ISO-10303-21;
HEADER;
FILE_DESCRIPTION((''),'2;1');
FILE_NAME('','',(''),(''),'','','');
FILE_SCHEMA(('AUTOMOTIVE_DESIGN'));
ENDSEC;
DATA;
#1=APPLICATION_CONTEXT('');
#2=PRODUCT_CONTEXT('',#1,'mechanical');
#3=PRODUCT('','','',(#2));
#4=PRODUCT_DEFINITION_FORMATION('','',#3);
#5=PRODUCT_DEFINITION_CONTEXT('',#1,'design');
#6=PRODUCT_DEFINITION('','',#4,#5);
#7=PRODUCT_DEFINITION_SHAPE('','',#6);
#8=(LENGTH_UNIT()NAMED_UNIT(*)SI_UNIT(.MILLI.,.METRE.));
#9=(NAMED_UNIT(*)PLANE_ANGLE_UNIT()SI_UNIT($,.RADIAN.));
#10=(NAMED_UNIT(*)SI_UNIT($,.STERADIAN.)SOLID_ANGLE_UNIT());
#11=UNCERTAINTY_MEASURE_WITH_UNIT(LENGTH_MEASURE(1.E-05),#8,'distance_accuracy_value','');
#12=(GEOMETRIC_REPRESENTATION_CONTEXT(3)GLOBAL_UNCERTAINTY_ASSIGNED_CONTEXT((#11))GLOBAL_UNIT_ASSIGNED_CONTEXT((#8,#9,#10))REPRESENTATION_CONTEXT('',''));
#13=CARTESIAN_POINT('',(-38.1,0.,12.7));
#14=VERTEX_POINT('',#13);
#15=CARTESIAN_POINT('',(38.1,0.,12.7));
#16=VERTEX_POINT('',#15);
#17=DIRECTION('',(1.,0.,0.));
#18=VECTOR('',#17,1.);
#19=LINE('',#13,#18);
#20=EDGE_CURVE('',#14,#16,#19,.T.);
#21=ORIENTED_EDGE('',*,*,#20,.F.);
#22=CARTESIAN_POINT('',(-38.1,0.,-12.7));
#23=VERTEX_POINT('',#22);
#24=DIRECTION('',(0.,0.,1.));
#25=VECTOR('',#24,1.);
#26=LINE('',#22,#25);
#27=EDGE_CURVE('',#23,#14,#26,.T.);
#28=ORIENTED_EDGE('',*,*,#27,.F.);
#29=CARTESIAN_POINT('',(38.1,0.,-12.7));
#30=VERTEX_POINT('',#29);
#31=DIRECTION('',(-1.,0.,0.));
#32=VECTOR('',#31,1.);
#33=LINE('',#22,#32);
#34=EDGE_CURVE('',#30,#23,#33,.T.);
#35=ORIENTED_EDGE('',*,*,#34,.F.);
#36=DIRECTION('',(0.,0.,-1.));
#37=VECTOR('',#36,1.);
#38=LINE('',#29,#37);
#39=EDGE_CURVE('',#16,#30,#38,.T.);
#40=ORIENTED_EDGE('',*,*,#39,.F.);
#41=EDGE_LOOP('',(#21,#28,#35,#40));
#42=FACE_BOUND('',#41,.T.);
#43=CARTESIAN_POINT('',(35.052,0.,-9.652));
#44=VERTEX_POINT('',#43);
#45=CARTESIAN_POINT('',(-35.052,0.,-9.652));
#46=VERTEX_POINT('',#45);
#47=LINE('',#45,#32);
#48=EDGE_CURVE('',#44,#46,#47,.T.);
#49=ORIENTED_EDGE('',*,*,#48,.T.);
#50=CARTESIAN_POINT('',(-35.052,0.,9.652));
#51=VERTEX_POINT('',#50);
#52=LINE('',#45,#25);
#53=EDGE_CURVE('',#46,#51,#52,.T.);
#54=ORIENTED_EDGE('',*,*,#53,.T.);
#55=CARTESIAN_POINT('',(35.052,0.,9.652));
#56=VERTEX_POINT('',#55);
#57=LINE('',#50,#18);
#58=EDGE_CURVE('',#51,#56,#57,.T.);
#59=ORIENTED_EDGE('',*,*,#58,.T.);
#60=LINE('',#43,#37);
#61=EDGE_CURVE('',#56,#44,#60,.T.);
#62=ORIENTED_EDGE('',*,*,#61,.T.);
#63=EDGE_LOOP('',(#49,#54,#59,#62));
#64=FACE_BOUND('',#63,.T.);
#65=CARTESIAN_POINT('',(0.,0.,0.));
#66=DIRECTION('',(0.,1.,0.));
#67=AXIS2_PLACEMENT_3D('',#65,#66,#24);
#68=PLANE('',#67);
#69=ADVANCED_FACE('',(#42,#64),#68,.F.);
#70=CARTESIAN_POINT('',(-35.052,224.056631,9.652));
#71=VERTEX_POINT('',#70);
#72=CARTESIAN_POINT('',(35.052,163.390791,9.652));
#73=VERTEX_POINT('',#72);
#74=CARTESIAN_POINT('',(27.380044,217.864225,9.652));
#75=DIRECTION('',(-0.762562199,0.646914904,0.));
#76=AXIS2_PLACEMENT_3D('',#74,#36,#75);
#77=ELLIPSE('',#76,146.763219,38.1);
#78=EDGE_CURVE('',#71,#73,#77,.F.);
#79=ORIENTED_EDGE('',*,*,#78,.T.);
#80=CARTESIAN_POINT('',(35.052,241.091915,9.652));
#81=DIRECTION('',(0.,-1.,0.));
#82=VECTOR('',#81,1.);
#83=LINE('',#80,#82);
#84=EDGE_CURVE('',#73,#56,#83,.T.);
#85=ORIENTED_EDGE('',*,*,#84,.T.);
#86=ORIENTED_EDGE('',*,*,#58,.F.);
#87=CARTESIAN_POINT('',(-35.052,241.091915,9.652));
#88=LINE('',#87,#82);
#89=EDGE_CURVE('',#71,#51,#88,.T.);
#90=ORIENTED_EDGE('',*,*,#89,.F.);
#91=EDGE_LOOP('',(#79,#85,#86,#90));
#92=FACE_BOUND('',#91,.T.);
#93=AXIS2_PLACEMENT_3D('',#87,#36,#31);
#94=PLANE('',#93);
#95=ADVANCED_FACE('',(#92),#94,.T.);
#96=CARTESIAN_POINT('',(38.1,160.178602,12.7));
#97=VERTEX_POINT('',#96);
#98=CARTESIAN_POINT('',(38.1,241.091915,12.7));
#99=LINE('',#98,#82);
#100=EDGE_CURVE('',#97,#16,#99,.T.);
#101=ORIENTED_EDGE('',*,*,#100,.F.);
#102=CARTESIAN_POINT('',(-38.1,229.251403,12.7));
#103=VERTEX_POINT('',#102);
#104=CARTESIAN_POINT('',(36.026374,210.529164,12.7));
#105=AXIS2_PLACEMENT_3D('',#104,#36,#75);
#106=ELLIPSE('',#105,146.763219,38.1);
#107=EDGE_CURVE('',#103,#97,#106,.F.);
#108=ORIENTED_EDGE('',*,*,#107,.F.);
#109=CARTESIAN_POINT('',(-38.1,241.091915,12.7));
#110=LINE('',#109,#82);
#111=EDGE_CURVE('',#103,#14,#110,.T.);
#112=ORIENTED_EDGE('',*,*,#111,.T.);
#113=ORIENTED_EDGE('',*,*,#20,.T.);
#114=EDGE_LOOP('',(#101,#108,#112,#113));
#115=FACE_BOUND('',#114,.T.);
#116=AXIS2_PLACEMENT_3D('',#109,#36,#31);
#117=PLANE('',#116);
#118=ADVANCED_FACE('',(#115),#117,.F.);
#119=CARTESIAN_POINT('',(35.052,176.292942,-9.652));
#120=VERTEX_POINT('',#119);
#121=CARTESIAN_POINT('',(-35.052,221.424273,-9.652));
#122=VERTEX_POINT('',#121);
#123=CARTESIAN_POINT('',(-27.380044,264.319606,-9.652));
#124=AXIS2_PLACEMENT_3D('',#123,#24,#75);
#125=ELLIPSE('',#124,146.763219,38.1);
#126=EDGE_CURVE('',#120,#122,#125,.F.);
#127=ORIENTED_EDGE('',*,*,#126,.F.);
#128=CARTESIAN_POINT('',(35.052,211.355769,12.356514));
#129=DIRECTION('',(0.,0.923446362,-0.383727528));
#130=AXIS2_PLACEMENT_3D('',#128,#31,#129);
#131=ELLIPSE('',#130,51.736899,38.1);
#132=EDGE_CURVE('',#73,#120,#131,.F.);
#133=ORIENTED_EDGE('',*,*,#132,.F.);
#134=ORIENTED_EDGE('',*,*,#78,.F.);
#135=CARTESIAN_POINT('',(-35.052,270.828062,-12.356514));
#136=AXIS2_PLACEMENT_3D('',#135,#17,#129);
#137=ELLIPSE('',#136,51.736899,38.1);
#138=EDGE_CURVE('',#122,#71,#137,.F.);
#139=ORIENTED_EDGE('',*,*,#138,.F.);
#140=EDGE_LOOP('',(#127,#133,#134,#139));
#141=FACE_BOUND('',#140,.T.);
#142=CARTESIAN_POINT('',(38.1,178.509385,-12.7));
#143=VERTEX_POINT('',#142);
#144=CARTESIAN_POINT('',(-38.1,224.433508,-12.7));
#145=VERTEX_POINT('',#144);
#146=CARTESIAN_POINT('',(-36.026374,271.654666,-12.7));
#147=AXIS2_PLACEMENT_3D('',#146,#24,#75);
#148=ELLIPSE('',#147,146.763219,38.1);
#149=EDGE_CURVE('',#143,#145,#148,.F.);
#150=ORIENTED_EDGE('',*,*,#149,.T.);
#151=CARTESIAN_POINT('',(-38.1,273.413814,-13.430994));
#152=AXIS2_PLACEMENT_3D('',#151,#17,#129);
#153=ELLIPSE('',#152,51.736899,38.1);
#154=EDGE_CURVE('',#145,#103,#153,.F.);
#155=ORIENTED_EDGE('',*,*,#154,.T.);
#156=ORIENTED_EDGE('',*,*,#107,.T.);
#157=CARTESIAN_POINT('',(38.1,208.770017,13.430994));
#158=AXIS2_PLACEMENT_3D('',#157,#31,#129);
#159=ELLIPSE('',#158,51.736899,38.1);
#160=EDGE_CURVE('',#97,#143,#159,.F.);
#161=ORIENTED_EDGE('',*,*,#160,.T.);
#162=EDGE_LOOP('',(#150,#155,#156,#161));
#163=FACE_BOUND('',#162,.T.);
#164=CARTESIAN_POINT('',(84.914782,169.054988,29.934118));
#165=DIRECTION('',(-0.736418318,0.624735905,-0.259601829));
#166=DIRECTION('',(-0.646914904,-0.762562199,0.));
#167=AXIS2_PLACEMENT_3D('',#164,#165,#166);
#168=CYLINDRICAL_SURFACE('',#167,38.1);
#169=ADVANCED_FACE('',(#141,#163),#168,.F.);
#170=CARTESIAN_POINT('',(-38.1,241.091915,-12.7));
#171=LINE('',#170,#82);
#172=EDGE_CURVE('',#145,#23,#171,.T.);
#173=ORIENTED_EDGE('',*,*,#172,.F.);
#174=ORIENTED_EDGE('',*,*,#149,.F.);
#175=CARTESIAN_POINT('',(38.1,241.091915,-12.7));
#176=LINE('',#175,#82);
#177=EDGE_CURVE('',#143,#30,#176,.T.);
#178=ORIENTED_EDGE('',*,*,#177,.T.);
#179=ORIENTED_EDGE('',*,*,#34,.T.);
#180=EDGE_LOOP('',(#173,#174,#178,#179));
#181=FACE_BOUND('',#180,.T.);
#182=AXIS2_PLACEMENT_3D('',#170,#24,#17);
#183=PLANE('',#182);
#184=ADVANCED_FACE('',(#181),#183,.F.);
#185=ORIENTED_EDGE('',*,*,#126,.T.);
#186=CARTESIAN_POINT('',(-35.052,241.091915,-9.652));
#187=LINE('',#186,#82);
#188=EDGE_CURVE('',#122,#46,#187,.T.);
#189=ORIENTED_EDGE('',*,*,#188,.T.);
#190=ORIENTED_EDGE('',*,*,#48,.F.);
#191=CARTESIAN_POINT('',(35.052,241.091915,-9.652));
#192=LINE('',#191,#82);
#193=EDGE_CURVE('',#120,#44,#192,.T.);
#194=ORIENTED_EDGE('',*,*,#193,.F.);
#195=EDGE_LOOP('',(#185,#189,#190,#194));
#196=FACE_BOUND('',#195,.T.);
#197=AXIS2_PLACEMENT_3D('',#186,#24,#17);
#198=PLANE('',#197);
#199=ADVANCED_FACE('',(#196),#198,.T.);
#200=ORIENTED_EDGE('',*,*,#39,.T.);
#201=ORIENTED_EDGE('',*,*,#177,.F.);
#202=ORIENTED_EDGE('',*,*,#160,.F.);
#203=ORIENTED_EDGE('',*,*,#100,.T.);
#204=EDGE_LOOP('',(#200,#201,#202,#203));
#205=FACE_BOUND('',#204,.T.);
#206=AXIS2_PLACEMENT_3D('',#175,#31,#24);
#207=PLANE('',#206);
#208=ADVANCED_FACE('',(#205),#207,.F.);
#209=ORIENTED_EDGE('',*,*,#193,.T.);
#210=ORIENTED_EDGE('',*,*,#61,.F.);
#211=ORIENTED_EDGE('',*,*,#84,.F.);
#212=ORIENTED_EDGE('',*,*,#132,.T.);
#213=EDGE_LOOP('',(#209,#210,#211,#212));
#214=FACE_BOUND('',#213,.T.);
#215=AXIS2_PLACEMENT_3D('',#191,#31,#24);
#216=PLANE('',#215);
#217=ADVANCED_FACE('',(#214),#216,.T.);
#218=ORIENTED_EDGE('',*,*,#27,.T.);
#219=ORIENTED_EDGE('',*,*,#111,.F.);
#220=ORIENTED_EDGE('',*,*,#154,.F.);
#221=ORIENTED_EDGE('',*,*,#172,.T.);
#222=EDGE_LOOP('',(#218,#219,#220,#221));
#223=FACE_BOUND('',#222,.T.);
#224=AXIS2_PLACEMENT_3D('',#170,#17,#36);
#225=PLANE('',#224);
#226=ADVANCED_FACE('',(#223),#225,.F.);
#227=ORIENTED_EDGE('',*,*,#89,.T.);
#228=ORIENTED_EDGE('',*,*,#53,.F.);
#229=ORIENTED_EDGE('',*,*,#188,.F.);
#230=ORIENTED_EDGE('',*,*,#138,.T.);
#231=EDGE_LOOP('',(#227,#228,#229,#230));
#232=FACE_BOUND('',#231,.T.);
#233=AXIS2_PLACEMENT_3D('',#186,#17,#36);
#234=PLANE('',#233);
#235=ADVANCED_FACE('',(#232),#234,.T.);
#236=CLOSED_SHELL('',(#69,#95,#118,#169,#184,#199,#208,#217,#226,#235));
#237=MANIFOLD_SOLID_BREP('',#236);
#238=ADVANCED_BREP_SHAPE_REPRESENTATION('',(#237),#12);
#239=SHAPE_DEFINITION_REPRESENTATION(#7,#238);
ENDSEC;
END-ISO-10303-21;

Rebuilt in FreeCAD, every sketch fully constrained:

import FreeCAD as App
import Part
import Sketcher
Q = App.Units.Quantity

doc = App.newDocument("Part")
body = doc.addObject("PartDesign::Body", "Body")

# Sketch on XZ plane
sketch1 = body.newObject("Sketcher::SketchObject", "Sketch")
sketch1.AttachmentSupport = (doc.getObject("XZ_Plane"), [""])
sketch1.MapMode = "FlatFace"
sketch1.addGeometry(Part.LineSegment(App.Vector(-38, -13, 0), App.Vector(-38, 13, 0)), False)
sketch1.addGeometry(Part.LineSegment(App.Vector(-38, 13, 0), App.Vector(38, 13, 0)), False)
sketch1.addGeometry(Part.LineSegment(App.Vector(38, 13, 0), App.Vector(38, -13, 0)), False)
sketch1.addGeometry(Part.LineSegment(App.Vector(38, -13, 0), App.Vector(-38, -13, 0)), False)
sketch1.addGeometry(Part.LineSegment(App.Vector(35, 10, 0), App.Vector(-35, 10, 0)), False)
sketch1.addGeometry(Part.LineSegment(App.Vector(-35, 10, 0), App.Vector(-35, -10, 0)), False)
sketch1.addGeometry(Part.LineSegment(App.Vector(-35, -10, 0), App.Vector(35, -10, 0)), False)
sketch1.addGeometry(Part.LineSegment(App.Vector(35, -10, 0), App.Vector(35, 10, 0)), False)
sketch1.addConstraint(Sketcher.Constraint("Coincident", 0, 2, 1, 1))
sketch1.addConstraint(Sketcher.Constraint("Coincident", 1, 2, 2, 1))
sketch1.addConstraint(Sketcher.Constraint("Coincident", 2, 2, 3, 1))
sketch1.addConstraint(Sketcher.Constraint("Coincident", 3, 2, 0, 1))
sketch1.addConstraint(Sketcher.Constraint("Coincident", 4, 2, 5, 1))
sketch1.addConstraint(Sketcher.Constraint("Coincident", 5, 2, 6, 1))
sketch1.addConstraint(Sketcher.Constraint("Coincident", 6, 2, 7, 1))
sketch1.addConstraint(Sketcher.Constraint("Coincident", 7, 2, 4, 1))
sketch1.addConstraint(Sketcher.Constraint("Vertical", 0))
sketch1.addConstraint(Sketcher.Constraint("Horizontal", 1))
sketch1.addConstraint(Sketcher.Constraint("Vertical", 2))
sketch1.addConstraint(Sketcher.Constraint("Horizontal", 3))
sketch1.addConstraint(Sketcher.Constraint("Horizontal", 4))
sketch1.addConstraint(Sketcher.Constraint("Vertical", 5))
sketch1.addConstraint(Sketcher.Constraint("Horizontal", 6))
sketch1.addConstraint(Sketcher.Constraint("Vertical", 7))
sketch1.addConstraint(Sketcher.Constraint("Symmetric", 0, 2, 2, 2, -1, 1))
sketch1.addConstraint(Sketcher.Constraint("Symmetric", 4, 2, 6, 2, -1, 1))
sketch1.addConstraint(Sketcher.Constraint("DistanceX", 1, 1, 1, 2, Q("3 in")))
sketch1.addConstraint(Sketcher.Constraint("DistanceY", 0, 1, 0, 2, Q("1 in")))
sketch1.addConstraint(Sketcher.Constraint("DistanceX", 4, 2, 4, 1, Q("2.76 in")))
sketch1.addConstraint(Sketcher.Constraint("DistanceY", 5, 2, 5, 1, Q("0.76 in")))
pad1 = body.newObject("PartDesign::Pad", "Pad")
pad1.Profile = sketch1
pad1.Length = 241.091915
pad1.Reversed = True

# Sketch on XZ plane
sketch2 = body.newObject("Sketcher::SketchObject", "Sketch001")
sketch2.AttachmentSupport = (doc.getObject("XZ_Plane"), [""])
sketch2.MapMode = "FlatFace"
sketch2.AttachmentOffset = App.Placement(App.Vector(0, 0, -241.091915), App.Rotation())
sketch2.addGeometry(Part.LineSegment(App.Vector(-38, -13, 0), App.Vector(-38, 13, 0)), False)
sketch2.addGeometry(Part.LineSegment(App.Vector(-38, 13, 0), App.Vector(38, 13, 0)), False)
sketch2.addGeometry(Part.LineSegment(App.Vector(38, 13, 0), App.Vector(38, -13, 0)), False)
sketch2.addGeometry(Part.LineSegment(App.Vector(38, -13, 0), App.Vector(-38, -13, 0)), False)
sketch2.addGeometry(Part.LineSegment(App.Vector(35, 10, 0), App.Vector(-35, 10, 0)), False)
sketch2.addGeometry(Part.LineSegment(App.Vector(-35, 10, 0), App.Vector(-35, -10, 0)), False)
sketch2.addGeometry(Part.LineSegment(App.Vector(-35, -10, 0), App.Vector(35, -10, 0)), False)
sketch2.addGeometry(Part.LineSegment(App.Vector(35, -10, 0), App.Vector(35, 10, 0)), False)
sketch2.addConstraint(Sketcher.Constraint("Coincident", 0, 2, 1, 1))
sketch2.addConstraint(Sketcher.Constraint("Coincident", 1, 2, 2, 1))
sketch2.addConstraint(Sketcher.Constraint("Coincident", 2, 2, 3, 1))
sketch2.addConstraint(Sketcher.Constraint("Coincident", 3, 2, 0, 1))
sketch2.addConstraint(Sketcher.Constraint("Coincident", 4, 2, 5, 1))
sketch2.addConstraint(Sketcher.Constraint("Coincident", 5, 2, 6, 1))
sketch2.addConstraint(Sketcher.Constraint("Coincident", 6, 2, 7, 1))
sketch2.addConstraint(Sketcher.Constraint("Coincident", 7, 2, 4, 1))
sketch2.addConstraint(Sketcher.Constraint("Vertical", 0))
sketch2.addConstraint(Sketcher.Constraint("Horizontal", 1))
sketch2.addConstraint(Sketcher.Constraint("Vertical", 2))
sketch2.addConstraint(Sketcher.Constraint("Horizontal", 3))
sketch2.addConstraint(Sketcher.Constraint("Horizontal", 4))
sketch2.addConstraint(Sketcher.Constraint("Vertical", 5))
sketch2.addConstraint(Sketcher.Constraint("Horizontal", 6))
sketch2.addConstraint(Sketcher.Constraint("Vertical", 7))
sketch2.addConstraint(Sketcher.Constraint("Symmetric", 0, 2, 2, 2, -1, 1))
sketch2.addConstraint(Sketcher.Constraint("Symmetric", 4, 2, 6, 2, -1, 1))
sketch2.addConstraint(Sketcher.Constraint("DistanceX", 1, 1, 1, 2, Q("3 in")))
sketch2.addConstraint(Sketcher.Constraint("DistanceY", 0, 1, 0, 2, Q("1 in")))
sketch2.addConstraint(Sketcher.Constraint("DistanceX", 4, 2, 4, 1, Q("2.76 in")))
sketch2.addConstraint(Sketcher.Constraint("DistanceY", 5, 2, 5, 1, Q("0.76 in")))
pad2 = body.newObject("PartDesign::Pad", "Pad001")
pad2.Profile = sketch2
pad2.Length = Q("0.12 in")
pad2.Reversed = True

# Sketch on an angled plane
sketch3 = body.newObject("Sketcher::SketchObject", "Sketch002")
sketch3.Placement = App.Placement(App.Vector(-24.492298, 261.869804, -8.634013), App.Rotation(App.Vector(0.275534909, -0.073492792, -0.958477607), App.Vector(0.617874238, 0.777369834, 0.118015112), App.Vector(0.736418318, -0.624735905, 0.259601829), "ZXY"))
sketch3.addGeometry(Part.Circle(App.Vector(0, 0, 0), App.Vector(0, 0, 1), 38), False)
sketch3.addConstraint(Sketcher.Constraint("Coincident", 0, 3, -1, 1))
sketch3.addConstraint(Sketcher.Constraint("Diameter", 0, Q("3 in")))
pocket1 = body.newObject("PartDesign::Pocket", "Pocket")
pocket1.Profile = sketch3
pocket1.Length = 115.162609
pocket1.Reversed = True

doc.recompute()
